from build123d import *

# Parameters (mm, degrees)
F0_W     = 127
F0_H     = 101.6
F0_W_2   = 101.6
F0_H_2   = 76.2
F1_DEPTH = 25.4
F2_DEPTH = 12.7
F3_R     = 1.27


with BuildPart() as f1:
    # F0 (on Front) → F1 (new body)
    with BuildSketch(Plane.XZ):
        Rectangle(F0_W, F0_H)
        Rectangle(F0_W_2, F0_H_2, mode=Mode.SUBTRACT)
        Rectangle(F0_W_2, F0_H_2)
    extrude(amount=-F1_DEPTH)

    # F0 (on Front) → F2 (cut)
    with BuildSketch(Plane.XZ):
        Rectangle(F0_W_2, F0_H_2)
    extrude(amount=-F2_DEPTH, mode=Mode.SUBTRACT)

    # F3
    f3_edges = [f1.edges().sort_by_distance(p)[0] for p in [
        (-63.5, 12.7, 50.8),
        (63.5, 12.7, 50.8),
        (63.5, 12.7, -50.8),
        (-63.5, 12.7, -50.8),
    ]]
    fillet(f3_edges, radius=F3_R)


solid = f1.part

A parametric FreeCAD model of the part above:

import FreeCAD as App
import Part
import Sketcher
from FreeCAD import Vector
Q = App.Units.Quantity


def edges_at(feature, points):
    """Names of the edges that pass closest to the given points."""
    edges = feature.Shape.Edges
    near = lambda p: min(range(len(edges)), key=lambda i: edges[i].distToShape(Part.Vertex(*p))[0])
    return sorted({f"Edge{near(p) + 1}" for p in points})

doc = App.newDocument("Part")
body = doc.addObject("PartDesign::Body", "Body")

# Sketch on XZ plane
sketch1 = body.newObject("Sketcher::SketchObject", "Sketch")
sketch1.AttachmentSupport = (doc.getObject("XZ_Plane"), [""])
sketch1.MapMode = "FlatFace"
sketch1.addGeometry([
    Part.LineSegment(Vector(-63.5, 50.8, 0), Vector(-63.5, -50.8, 0)),
    Part.LineSegment(Vector(-63.5, -50.8, 0), Vector(63.5, -50.8, 0)),
    Part.LineSegment(Vector(63.5, -50.8, 0), Vector(63.5, 50.8, 0)),
    Part.LineSegment(Vector(63.5, 50.8, 0), Vector(-63.5, 50.8, 0)),
], False)
sketch1.addConstraint([
    Sketcher.Constraint("Coincident", 0, 2, 1, 1),
    Sketcher.Constraint("Coincident", 1, 2, 2, 1),
    Sketcher.Constraint("Coincident", 2, 2, 3, 1),
    Sketcher.Constraint("Coincident", 3, 2, 0, 1),
    Sketcher.Constraint("Vertical", 0),
    Sketcher.Constraint("Horizontal", 1),
    Sketcher.Constraint("Vertical", 2),
    Sketcher.Constraint("Horizontal", 3),
    Sketcher.Constraint("Symmetric", 0, 2, 2, 2, -1, 1),
    Sketcher.Constraint("DistanceX", 1, 1, 1, 2, Q("5 in")),
    Sketcher.Constraint("DistanceY", 0, 2, 0, 1, Q("4 in")),
])
pad1 = body.newObject("PartDesign::Pad", "Pad")
pad1.Profile = sketch1
pad1.Length = Q("1 in")
pad1.Reversed = True

# Sketch on XZ plane
sketch2 = body.newObject("Sketcher::SketchObject", "Sketch001")
sketch2.AttachmentSupport = (doc.getObject("XZ_Plane"), [""])
sketch2.MapMode = "FlatFace"
sketch2.addGeometry([
    Part.LineSegment(Vector(-50.8, 38.1, 0), Vector(-50.8, -38.1, 0)),
    Part.LineSegment(Vector(-50.8, -38.1, 0), Vector(50.8, -38.1, 0)),
    Part.LineSegment(Vector(50.8, -38.1, 0), Vector(50.8, 38.1, 0)),
    Part.LineSegment(Vector(50.8, 38.1, 0), Vector(-50.8, 38.1, 0)),
], False)
sketch2.addConstraint([
    Sketcher.Constraint("Coincident", 0, 2, 1, 1),
    Sketcher.Constraint("Coincident", 1, 2, 2, 1),
    Sketcher.Constraint("Coincident", 2, 2, 3, 1),
    Sketcher.Constraint("Coincident", 3, 2, 0, 1),
    Sketcher.Constraint("Vertical", 0),
    Sketcher.Constraint("Horizontal", 1),
    Sketcher.Constraint("Vertical", 2),
    Sketcher.Constraint("Horizontal", 3),
    Sketcher.Constraint("Symmetric", 0, 2, 2, 2, -1, 1),
    Sketcher.Constraint("DistanceX", 1, 1, 1, 2, Q("4 in")),
    Sketcher.Constraint("DistanceY", 0, 2, 0, 1, Q("3 in")),
])
pocket1 = body.newObject("PartDesign::Pocket", "Pocket")
pocket1.Profile = sketch2
pocket1.Length = Q("0.5 in")
doc.recompute()

fillet = body.newObject("PartDesign::Fillet", "Fillet")
fillet.Base = (pocket1, edges_at(pocket1, [
    (-63.5, 12.7, 50.8),
    (63.5, 12.7, 50.8),
    (63.5, 12.7, -50.8),
    (-63.5, 12.7, -50.8),
]))
fillet.Radius = Q("0.05 in")

doc.recompute()
